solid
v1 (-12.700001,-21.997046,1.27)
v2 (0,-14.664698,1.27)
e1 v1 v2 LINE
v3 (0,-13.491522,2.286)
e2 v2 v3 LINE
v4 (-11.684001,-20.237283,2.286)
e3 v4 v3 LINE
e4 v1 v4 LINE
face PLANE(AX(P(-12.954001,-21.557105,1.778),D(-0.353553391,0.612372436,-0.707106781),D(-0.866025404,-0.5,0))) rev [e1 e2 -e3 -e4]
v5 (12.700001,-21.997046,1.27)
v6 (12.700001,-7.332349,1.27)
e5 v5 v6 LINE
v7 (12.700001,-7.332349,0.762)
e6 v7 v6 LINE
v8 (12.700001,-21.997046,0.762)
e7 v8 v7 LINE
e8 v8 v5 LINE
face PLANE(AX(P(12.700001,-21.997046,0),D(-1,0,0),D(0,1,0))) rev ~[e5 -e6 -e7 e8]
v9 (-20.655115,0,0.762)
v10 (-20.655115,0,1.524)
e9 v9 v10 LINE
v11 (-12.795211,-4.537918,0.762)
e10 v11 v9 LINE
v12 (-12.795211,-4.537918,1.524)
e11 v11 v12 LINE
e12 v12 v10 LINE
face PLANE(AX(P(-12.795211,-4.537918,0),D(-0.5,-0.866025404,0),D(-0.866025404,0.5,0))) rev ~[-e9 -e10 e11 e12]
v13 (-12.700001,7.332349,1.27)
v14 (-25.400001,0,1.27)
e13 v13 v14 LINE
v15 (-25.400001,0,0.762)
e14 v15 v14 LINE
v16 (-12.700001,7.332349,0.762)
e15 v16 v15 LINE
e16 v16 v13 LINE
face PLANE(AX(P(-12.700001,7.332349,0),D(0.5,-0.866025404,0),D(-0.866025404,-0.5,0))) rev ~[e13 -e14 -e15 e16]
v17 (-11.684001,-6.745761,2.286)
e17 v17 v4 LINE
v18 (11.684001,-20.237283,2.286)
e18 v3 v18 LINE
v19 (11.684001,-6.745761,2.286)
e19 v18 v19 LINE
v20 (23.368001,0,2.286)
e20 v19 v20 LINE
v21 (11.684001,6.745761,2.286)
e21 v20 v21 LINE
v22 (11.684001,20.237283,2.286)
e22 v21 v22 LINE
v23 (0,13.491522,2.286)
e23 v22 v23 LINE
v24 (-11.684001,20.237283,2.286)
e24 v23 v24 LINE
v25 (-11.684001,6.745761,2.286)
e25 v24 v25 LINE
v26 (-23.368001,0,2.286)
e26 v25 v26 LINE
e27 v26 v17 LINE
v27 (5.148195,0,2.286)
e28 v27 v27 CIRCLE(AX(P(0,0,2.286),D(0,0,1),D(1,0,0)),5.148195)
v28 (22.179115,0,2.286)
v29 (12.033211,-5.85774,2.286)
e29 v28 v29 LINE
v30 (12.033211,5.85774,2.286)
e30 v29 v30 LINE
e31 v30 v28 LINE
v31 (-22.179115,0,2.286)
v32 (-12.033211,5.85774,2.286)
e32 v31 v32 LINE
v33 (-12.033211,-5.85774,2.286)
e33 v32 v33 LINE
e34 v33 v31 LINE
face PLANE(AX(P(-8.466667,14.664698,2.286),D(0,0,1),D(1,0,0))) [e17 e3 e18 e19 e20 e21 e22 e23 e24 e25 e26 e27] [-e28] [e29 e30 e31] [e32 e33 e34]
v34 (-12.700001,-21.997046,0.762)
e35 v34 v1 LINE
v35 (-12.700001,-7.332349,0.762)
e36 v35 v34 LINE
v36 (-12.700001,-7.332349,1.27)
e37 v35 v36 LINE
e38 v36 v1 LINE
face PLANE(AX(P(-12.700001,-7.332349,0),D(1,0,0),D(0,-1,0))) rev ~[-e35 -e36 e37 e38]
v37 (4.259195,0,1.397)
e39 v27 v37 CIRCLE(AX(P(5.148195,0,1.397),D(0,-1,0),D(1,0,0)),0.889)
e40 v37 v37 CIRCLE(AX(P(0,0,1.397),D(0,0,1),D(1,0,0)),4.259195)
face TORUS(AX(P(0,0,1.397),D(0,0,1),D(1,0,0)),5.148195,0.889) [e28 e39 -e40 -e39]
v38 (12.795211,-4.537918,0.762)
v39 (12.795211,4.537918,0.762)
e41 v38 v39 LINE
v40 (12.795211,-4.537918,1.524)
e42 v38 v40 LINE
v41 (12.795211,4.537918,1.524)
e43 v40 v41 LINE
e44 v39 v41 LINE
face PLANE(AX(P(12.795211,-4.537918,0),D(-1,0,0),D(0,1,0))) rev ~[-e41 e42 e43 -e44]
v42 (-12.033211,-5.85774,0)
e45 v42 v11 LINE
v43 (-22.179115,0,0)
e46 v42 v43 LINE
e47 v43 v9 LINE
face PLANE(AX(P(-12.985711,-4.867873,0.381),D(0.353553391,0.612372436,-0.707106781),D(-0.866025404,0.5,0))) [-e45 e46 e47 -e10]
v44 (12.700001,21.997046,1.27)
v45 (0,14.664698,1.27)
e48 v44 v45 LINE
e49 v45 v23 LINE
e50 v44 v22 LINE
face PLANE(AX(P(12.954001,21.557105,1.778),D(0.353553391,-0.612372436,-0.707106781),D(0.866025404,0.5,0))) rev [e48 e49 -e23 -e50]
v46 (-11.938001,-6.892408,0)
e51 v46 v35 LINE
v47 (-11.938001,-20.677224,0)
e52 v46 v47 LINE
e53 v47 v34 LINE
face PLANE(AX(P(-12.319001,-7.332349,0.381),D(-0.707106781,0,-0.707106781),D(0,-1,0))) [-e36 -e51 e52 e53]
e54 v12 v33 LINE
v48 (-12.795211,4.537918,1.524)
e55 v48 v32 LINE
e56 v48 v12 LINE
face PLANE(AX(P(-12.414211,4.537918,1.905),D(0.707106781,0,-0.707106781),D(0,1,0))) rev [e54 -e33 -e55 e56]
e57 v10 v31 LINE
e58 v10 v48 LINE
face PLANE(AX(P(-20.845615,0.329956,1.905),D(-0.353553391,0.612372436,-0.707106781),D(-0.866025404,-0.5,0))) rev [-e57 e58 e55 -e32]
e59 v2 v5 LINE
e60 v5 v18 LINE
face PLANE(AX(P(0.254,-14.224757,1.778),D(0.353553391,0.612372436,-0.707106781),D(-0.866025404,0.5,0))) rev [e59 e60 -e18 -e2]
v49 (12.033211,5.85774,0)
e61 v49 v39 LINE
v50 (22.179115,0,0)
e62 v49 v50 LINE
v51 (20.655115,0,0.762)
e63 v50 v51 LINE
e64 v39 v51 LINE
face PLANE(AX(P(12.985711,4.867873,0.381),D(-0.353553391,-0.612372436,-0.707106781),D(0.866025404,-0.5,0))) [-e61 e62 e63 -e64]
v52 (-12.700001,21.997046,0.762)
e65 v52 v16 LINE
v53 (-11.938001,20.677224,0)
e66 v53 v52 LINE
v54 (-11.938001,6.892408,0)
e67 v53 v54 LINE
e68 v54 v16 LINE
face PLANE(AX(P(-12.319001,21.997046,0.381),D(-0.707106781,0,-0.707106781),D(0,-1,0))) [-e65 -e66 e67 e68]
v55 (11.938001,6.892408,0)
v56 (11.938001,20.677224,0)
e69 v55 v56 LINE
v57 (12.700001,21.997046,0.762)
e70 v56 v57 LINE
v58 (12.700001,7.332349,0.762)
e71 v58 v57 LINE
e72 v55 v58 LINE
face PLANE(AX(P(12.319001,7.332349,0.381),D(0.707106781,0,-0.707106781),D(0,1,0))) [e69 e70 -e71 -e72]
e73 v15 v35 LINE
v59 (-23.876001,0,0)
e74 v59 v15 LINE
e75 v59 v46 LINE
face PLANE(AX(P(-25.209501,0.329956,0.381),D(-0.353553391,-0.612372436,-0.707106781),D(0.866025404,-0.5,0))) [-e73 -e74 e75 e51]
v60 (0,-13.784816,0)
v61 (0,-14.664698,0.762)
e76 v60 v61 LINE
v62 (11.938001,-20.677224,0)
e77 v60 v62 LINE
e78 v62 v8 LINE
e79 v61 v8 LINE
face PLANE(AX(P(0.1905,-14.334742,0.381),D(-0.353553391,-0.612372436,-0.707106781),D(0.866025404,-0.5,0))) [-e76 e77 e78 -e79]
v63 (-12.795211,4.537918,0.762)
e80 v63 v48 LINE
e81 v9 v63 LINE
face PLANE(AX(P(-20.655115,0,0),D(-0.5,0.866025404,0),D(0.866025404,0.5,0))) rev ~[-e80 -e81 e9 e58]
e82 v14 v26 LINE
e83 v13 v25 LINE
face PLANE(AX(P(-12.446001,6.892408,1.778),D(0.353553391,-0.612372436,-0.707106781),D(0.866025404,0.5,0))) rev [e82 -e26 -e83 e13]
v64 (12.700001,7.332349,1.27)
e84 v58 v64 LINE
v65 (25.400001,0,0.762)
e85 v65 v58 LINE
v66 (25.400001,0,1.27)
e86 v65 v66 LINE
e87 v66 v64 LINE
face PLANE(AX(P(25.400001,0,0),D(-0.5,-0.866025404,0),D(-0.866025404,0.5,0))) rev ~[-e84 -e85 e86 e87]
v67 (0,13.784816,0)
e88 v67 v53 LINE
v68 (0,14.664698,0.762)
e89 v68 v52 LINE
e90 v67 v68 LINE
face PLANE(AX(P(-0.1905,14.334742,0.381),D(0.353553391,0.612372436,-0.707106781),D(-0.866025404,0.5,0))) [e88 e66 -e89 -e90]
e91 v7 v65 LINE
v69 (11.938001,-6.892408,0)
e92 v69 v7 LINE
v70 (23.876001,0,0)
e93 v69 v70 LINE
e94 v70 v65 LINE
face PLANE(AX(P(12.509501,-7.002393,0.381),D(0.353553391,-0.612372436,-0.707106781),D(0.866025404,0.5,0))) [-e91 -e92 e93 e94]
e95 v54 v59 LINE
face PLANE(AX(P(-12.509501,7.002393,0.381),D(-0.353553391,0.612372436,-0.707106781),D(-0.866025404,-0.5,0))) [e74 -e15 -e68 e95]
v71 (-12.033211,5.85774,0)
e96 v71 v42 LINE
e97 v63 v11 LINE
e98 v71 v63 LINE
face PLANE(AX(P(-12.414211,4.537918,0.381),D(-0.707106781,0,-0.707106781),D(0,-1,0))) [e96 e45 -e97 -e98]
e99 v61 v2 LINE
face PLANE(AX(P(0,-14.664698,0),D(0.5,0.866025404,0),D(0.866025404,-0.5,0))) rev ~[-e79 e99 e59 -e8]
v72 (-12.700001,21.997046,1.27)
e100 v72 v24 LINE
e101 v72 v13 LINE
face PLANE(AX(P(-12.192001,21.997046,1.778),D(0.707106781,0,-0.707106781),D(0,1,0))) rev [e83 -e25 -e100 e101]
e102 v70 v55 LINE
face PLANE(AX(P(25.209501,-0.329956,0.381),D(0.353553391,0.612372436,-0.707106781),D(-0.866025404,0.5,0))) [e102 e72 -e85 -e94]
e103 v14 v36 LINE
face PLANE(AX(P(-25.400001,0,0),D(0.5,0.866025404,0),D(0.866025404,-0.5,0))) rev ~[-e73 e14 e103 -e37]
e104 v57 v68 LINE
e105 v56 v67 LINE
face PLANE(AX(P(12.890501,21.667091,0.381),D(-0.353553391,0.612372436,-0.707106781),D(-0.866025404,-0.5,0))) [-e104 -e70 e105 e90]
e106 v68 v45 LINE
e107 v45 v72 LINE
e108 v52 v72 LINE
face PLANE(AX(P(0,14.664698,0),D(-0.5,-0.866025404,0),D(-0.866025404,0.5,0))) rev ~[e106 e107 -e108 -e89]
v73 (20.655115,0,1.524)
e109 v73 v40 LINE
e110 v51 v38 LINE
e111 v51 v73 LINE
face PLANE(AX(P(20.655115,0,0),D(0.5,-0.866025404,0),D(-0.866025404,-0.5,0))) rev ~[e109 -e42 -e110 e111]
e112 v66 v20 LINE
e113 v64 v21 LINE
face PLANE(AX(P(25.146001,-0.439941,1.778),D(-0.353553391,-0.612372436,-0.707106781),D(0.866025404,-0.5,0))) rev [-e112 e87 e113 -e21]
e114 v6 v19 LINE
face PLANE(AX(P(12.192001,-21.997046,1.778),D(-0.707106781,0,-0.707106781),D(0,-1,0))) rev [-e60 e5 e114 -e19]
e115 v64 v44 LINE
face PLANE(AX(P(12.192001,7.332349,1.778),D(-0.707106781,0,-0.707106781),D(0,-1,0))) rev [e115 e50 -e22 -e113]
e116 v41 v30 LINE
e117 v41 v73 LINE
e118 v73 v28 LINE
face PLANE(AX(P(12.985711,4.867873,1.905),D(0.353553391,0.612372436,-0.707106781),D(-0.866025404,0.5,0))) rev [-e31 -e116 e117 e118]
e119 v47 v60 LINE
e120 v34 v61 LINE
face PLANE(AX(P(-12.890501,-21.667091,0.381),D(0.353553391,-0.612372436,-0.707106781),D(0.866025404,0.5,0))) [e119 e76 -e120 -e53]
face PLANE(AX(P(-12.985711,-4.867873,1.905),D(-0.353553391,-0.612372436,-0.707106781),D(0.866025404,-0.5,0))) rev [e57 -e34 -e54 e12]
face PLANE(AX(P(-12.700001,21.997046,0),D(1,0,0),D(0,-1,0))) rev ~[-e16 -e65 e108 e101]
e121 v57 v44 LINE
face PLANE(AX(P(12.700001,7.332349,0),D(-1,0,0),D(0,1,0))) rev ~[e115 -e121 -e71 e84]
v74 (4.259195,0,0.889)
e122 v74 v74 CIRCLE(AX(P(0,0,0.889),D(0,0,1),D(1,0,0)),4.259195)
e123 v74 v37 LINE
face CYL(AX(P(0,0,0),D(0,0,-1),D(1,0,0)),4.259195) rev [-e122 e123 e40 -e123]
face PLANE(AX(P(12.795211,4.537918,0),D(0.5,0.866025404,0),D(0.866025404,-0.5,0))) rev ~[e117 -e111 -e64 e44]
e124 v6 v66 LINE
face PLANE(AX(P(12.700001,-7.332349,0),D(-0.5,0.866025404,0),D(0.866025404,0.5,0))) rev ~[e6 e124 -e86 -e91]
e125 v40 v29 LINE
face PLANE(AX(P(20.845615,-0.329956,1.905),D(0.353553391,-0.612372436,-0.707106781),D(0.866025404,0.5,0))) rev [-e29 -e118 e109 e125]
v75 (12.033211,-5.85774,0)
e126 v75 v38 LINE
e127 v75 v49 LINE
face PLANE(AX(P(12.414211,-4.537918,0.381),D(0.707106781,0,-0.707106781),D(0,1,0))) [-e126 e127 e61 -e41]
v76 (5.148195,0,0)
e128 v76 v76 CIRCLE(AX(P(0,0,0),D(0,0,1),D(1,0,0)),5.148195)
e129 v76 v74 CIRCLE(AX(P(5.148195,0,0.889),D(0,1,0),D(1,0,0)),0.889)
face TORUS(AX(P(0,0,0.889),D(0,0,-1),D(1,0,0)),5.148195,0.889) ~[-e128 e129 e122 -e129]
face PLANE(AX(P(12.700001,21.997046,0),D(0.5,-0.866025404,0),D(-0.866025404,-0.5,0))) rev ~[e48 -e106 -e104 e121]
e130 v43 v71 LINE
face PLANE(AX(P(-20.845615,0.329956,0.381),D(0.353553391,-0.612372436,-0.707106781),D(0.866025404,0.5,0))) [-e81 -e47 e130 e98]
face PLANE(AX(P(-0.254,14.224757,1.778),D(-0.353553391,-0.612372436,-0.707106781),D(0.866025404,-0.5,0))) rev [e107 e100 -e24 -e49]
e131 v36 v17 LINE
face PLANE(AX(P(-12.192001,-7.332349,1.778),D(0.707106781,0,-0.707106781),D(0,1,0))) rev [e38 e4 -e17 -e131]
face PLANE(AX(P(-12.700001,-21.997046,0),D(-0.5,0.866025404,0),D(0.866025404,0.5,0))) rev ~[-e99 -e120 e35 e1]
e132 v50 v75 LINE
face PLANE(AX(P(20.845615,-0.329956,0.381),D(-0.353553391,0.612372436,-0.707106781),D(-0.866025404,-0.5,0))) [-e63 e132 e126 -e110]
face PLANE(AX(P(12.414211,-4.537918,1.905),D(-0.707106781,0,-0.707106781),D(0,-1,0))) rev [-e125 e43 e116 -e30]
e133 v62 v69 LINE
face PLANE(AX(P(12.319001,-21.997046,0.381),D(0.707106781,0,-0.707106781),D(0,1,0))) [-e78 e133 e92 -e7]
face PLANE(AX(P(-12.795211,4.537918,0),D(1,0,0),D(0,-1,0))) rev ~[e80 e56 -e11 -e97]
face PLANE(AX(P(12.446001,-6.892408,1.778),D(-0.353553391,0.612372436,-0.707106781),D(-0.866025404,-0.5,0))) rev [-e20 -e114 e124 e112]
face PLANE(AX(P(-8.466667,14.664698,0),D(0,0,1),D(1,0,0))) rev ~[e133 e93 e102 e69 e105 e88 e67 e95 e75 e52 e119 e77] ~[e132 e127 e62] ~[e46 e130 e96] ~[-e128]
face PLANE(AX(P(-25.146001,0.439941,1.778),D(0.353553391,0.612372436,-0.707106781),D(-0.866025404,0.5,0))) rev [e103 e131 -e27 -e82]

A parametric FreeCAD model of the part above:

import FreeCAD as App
import Part
import Sketcher

V = App.Vector
Q = App.Units.Quantity


def edges_at(feature, points):
    """Names of the edges that pass closest to the given points."""
    edges = feature.Shape.Edges
    near = lambda p: min(range(len(edges)), key=lambda i: edges[i].distToShape(Part.Vertex(*p))[0])
    return sorted({f"Edge{near(p) + 1}" for p in points})

doc = App.newDocument("Part")
params = doc.addObject("Spreadsheet::Sheet", "Params")
for row, (alias, value) in enumerate([
    ("pad1_length", "0.09 in"),
    ("chamfer_size", "0.04 in"),
    ("fillet_radius", "0.035 in"),
    ("chamfer2_size", "0.03 in"),
    ("chamfer3_size", "0.03 in"),
], start=1):
    params.set(f"A{row}", alias)
    params.set(f"B{row}", "=" + value)
    params.setAlias(f"B{row}", alias)

body = doc.addObject("PartDesign::Body", "Body")

sketch1 = doc.addObject("Sketcher::SketchObject", "Sketch")
body.addObject(sketch1)
sketch1.AttachmentSupport = (doc.XY_Plane, [""])
sketch1.MapMode = "FlatFace"
sketch1.addGeometry(Part.LineSegment(V(0, 14.664698, 0), V(-12.700001, 21.997046, 0)), False)
sketch1.addGeometry(Part.LineSegment(V(-12.700001, 21.997046, 0), V(-12.700001, 7.332349, 0)), False)
sketch1.addGeometry(Part.LineSegment(V(-12.700001, 7.332349, 0), V(-25.400001, 0, 0)), False)
sketch1.addGeometry(Part.LineSegment(V(-25.400001, 0, 0), V(-12.700001, -7.332349, 0)), False)
sketch1.addGeometry(Part.LineSegment(V(-12.700001, -7.332349, 0), V(-12.700001, -21.997046, 0)), False)
sketch1.addGeometry(Part.LineSegment(V(-12.700001, -21.997046, 0), V(0, -14.664698, 0)), False)
sketch1.addGeometry(Part.LineSegment(V(0, -14.664698, 0), V(12.700001, -21.997046, 0)), False)
sketch1.addGeometry(Part.LineSegment(V(12.700001, -21.997046, 0), V(12.700001, -7.332349, 0)), False)
sketch1.addGeometry(Part.LineSegment(V(12.700001, -7.332349, 0), V(25.400001, 0, 0)), False)
sketch1.addGeometry(Part.LineSegment(V(25.400001, 0, 0), V(12.700001, 7.332349, 0)), False)
sketch1.addGeometry(Part.LineSegment(V(12.700001, 7.332349, 0), V(12.700001, 21.997046, 0)), False)
sketch1.addGeometry(Part.LineSegment(V(12.700001, 21.997046, 0), V(0, 14.664698, 0)), False)
sketch1.addGeometry(Part.LineSegment(V(-12.795211, -4.537918, 0), V(-20.655115, 0, 0)), False)
sketch1.addGeometry(Part.LineSegment(V(-20.655115, 0, 0), V(-12.795211, 4.537918, 0)), False)
sketch1.addGeometry(Part.LineSegment(V(-12.795211, 4.537918, 0), V(-12.795211, -4.537918, 0)), False)
sketch1.addGeometry(Part.Circle(V(0, 0, 0), V(0, 0, 1), 4.259195), False)
sketch1.addGeometry(Part.LineSegment(V(20.655115, 0, 0), V(12.795211, -4.537918, 0)), False)
sketch1.addGeometry(Part.LineSegment(V(12.795211, -4.537918, 0), V(12.795211, 4.537918, 0)), False)
sketch1.addGeometry(Part.LineSegment(V(12.795211, 4.537918, 0), V(20.655115, 0, 0)), False)
sketch1.addConstraint(Sketcher.Constraint("Coincident", 0, 2, 1, 1))
sketch1.addConstraint(Sketcher.Constraint("Coincident", 1, 2, 2, 1))
sketch1.addConstraint(Sketcher.Constraint("Coincident", 2, 2, 3, 1))
sketch1.addConstraint(Sketcher.Constraint("Coincident", 3, 2, 4, 1))
sketch1.addConstraint(Sketcher.Constraint("Coincident", 4, 2, 5, 1))
sketch1.addConstraint(Sketcher.Constraint("Coincident", 5, 2, 6, 1))
sketch1.addConstraint(Sketcher.Constraint("Coincident", 6, 2, 7, 1))
sketch1.addConstraint(Sketcher.Constraint("Coincident", 7, 2, 8, 1))
sketch1.addConstraint(Sketcher.Constraint("Coincident", 8, 2, 9, 1))
sketch1.addConstraint(Sketcher.Constraint("Coincident", 9, 2, 10, 1))
sketch1.addConstraint(Sketcher.Constraint("Coincident", 10, 2, 11, 1))
sketch1.addConstraint(Sketcher.Constraint("Coincident", 11, 2, 0, 1))
sketch1.addConstraint(Sketcher.Constraint("Coincident", 12, 2, 13, 1))
sketch1.addConstraint(Sketcher.Constraint("Coincident", 13, 2, 14, 1))
sketch1.addConstraint(Sketcher.Constraint("Coincident", 14, 2, 12, 1))
sketch1.addConstraint(Sketcher.Constraint("Coincident", 16, 2, 17, 1))
sketch1.addConstraint(Sketcher.Constraint("Coincident", 17, 2, 18, 1))
sketch1.addConstraint(Sketcher.Constraint("Coincident", 18, 2, 16, 1))
sketch1.addConstraint(Sketcher.Constraint("Vertical", 1))
sketch1.addConstraint(Sketcher.Constraint("Vertical", 4))
sketch1.addConstraint(Sketcher.Constraint("Vertical", 7))
sketch1.addConstraint(Sketcher.Constraint("Vertical", 10))
sketch1.addConstraint(Sketcher.Constraint("Vertical", 14))
sketch1.addConstraint(Sketcher.Constraint("Vertical", 17))
sketch1.addConstraint(Sketcher.Constraint("Coincident", 15, 3, -1, 1))
sketch1.addConstraint(Sketcher.Constraint("Symmetric", 0, 2, 6, 2, -1, 1))
sketch1.addConstraint(Sketcher.Constraint("Symmetric", 2, 2, 8, 2, -1, 1))
sketch1.addConstraint(Sketcher.Constraint("Symmetric", 3, 2, 9, 2, -1, 1))
sketch1.addConstraint(Sketcher.Constraint("Symmetric", 5, 2, 11, 2, -1, 1))
sketch1.addConstraint(Sketcher.Constraint("Symmetric", 13, 2, 16, 2, -1, 1))
sketch1.addConstraint(Sketcher.Constraint("Symmetric", 12, 2, 18, 2, -1, 1))
sketch1.addConstraint(Sketcher.Constraint("Symmetric", 4, 2, 6, 2, -2))
sketch1.addConstraint(Sketcher.Constraint("PointOnObject", 2, 2, -1))
sketch1.addConstraint(Sketcher.Constraint("PointOnObject", 5, 2, -2))
sketch1.addConstraint(Sketcher.Constraint("PointOnObject", 12, 2, -1))
sketch1.addConstraint(Sketcher.Constraint("Parallel", 0, 3))
sketch1.addConstraint(Sketcher.Constraint("Parallel", 2, 5))
sketch1.addConstraint(Sketcher.Constraint("Parallel", 5, 8))
sketch1.addConstraint(Sketcher.Constraint("Parallel", 8, 11))
sketch1.addConstraint(Sketcher.Constraint("Parallel", 9, 12))
sketch1.addConstraint(Sketcher.Constraint("Parallel", 11, 13))
sketch1.addConstraint(Sketcher.Constraint("Parallel", 12, 18))
sketch1.addConstraint(Sketcher.Constraint("Equal", 0, 2))
sketch1.addConstraint(Sketcher.Constraint("DistanceX", 2, 2, -1, 1, Q("1 in")))
sketch1.addConstraint(Sketcher.Constraint("Angle", 0, Q("150 deg")))
sketch1.addConstraint(Sketcher.Constraint("Diameter", 15, Q("8.518391 mm")))
sketch1.addConstraint(Sketcher.Constraint("DistanceY", 1, 2, 1, 1, Q("14.664698 mm")))
sketch1.addConstraint(Sketcher.Constraint("DistanceY", 14, 2, 14, 1, Q("9.075835 mm")))
sketch1.addConstraint(Sketcher.Constraint("DistanceX", 13, 2, -1, 1, Q("12.795211 mm")))
pad1 = doc.addObject("PartDesign::Pad", "Pad")
body.addObject(pad1)
pad1.Profile = sketch1
pad1.setExpression("Length", "Params.pad1_length")
doc.recompute()

chamfer = doc.addObject("PartDesign::Chamfer", "Chamfer")
body.addObject(chamfer)
chamfer.Base = (pad1, edges_at(pad1, [
    (-6.35, 18.331, 2.286),
    (-12.7, 14.665, 2.286),
    (-19.05, 3.666, 2.286),
    (-19.05, -3.666, 2.286),
    (-12.7, -14.665, 2.286),
    (-6.35, -18.331, 2.286),
    (6.35, -18.331, 2.286),
    (12.7, -14.665, 2.286),
    (19.05, -3.666, 2.286),
    (19.05, 3.666, 2.286),
    (12.7, 14.665, 2.286),
    (6.35, 18.331, 2.286),
]))
chamfer.setExpression("Size", "Params.chamfer_size")
doc.recompute()

fillet = doc.addObject("PartDesign::Fillet", "Fillet")
body.addObject(fillet)
fillet.Base = (chamfer, edges_at(chamfer, [(-4.259, 0, 0), (-4.259, 0, 2.286)]))
fillet.setExpression("Radius", "Params.fillet_radius")
doc.recompute()

chamfer2 = doc.addObject("PartDesign::Chamfer", "Chamfer001")
body.addObject(chamfer2)
chamfer2.Base = (fillet, edges_at(fillet, [
    (-6.35, -18.331, 0),
    (6.35, -18.331, 0),
    (12.7, -14.665, 0),
    (19.05, -3.666, 0),
    (19.05, 3.666, 0),
    (12.7, 14.665, 0),
    (6.35, 18.331, 0),
    (-6.35, 18.331, 0),
    (-12.7, 14.665, 0),
    (-19.05, 3.666, 0),
    (-19.05, -3.666, 0),
    (-12.7, -14.665, 0),
]))
chamfer2.setExpression("Size", "Params.chamfer2_size")
doc.recompute()

chamfer3 = doc.addObject("PartDesign::Chamfer", "Chamfer002")
body.addObject(chamfer3)
chamfer3.Base = (chamfer2, edges_at(chamfer2, [
    (-16.725, 2.269, 2.286),
    (-12.795, 0, 2.286),
    (-16.725, -2.269, 2.286),
    (12.795, 0, 2.286),
    (16.725, 2.269, 2.286),
    (16.725, -2.269, 2.286),
    (16.725, 2.269, 0),
    (12.795, 0, 0),
    (16.725, -2.269, 0),
    (-16.725, 2.269, 0),
    (-16.725, -2.269, 0),
    (-12.795, 0, 0),
]))
chamfer3.setExpression("Size", "Params.chamfer3_size")

doc.recompute()
